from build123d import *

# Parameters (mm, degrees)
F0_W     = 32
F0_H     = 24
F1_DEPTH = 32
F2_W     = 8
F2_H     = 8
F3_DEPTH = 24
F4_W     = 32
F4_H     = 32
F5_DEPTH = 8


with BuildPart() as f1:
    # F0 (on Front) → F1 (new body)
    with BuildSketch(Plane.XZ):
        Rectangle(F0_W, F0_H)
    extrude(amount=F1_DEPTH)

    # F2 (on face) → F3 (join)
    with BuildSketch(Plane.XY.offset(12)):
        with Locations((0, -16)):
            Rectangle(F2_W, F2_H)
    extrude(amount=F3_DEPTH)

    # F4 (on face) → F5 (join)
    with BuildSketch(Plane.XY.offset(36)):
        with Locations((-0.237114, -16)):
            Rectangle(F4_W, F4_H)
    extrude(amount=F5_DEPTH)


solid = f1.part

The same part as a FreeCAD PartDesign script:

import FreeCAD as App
import Part
import Sketcher
from FreeCAD import Vector
Q = App.Units.Quantity


def add_polygon(sketch, points):
    """Adds a closed chain of lines whose ends are joined by coincident constraints."""
    first, n = sketch.GeometryCount, len(points)
    for a, b in zip(points, points[1:] + points[:1]):
        sketch.addGeometry(Part.LineSegment(App.Vector(*a, 0), App.Vector(*b, 0)), False)
    for i in range(n):
        sketch.addConstraint(Sketcher.Constraint("Coincident", first + i, 2, first + (i + 1) % n, 1))

doc = App.newDocument("Part")
params = doc.addObject("Spreadsheet::Sheet", "Params")
for row, (alias, value) in enumerate([
    ("sketch1_width", "32 mm"),
    ("sketch1_height", "24 mm"),
    ("pad1_length", "32 mm"),
    ("sketch2_width", "8 mm"),
    ("pad2_length", "24 mm"),
    ("sketch3_width", "32 mm"),
    ("pad3_length", "8 mm"),
], start=1):
    params.set(f"A{row}", alias)
    params.set(f"B{row}", "=" + value)
    params.setAlias(f"B{row}", alias)

body = doc.addObject("PartDesign::Body", "Body")

sketch1 = body.newObject("Sketcher::SketchObject", "Sketch")
sketch1.AttachmentSupport = (doc.getObject("XZ_Plane"), [""])
sketch1.MapMode = "FlatFace"
add_polygon(sketch1, [(-16, 12), (-16, -12), (16, -12), (16, 12)])
sketch1.addConstraint([
    Sketcher.Constraint("Vertical", 0),
    Sketcher.Constraint("Horizontal", 1),
    Sketcher.Constraint("Vertical", 2),
    Sketcher.Constraint("Horizontal", 3),
    Sketcher.Constraint("Symmetric", 0, 2, 2, 2, -1, 1),
    Sketcher.Constraint("DistanceX", 1, 1, 1, 2, Q("32 mm")),
    Sketcher.Constraint("DistanceY", 0, 2, 0, 1, Q("24 mm")),
])
sketch1.setExpression("Constraints[9]", "Params.sketch1_width")
sketch1.setExpression("Constraints[10]", "Params.sketch1_height")
pad1 = body.newObject("PartDesign::Pad", "Pad")
pad1.Profile = sketch1
pad1.setExpression("Length", "Params.pad1_length")

sketch2 = body.newObject("Sketcher::SketchObject", "Sketch001")
sketch2.AttachmentSupport = (doc.getObject("XY_Plane"), [""])
sketch2.MapMode = "FlatFace"
sketch2.AttachmentOffset = App.Placement(Vector(0, 0, 12), App.Rotation())
add_polygon(sketch2, [(-4, -12), (-4, -20), (4, -20), (4, -12)])
sketch2.addConstraint([
    Sketcher.Constraint("Vertical", 0),
    Sketcher.Constraint("Horizontal", 1),
    Sketcher.Constraint("Vertical", 2),
    Sketcher.Constraint("Horizontal", 3),
    Sketcher.Constraint("Equal", 3, 0),
    Sketcher.Constraint("DistanceX", 1, 1, 1, 2, Q("8 mm")),
    Sketcher.Constraint("DistanceX", 0, 2, -1, 1, Q("4 mm")),
    Sketcher.Constraint("DistanceY", 0, 2, -1, 1, Q("20 mm")),
])
sketch2.setExpression("Constraints[9]", "Params.sketch2_width")
pad2 = body.newObject("PartDesign::Pad", "Pad001")
pad2.Profile = sketch2
pad2.setExpression("Length", "Params.pad2_length")

sketch3 = body.newObject("Sketcher::SketchObject", "Sketch002")
sketch3.AttachmentSupport = (doc.getObject("XY_Plane"), [""])
sketch3.MapMode = "FlatFace"
sketch3.AttachmentOffset = App.Placement(Vector(0, 0, 36), App.Rotation())
add_polygon(sketch3, [(-16, 0), (-16, -32), (16, -32), (16, 0)])
sketch3.addConstraint([
    Sketcher.Constraint("Vertical", 0),
    Sketcher.Constraint("Horizontal", 1),
    Sketcher.Constraint("Vertical", 2),
    Sketcher.Constraint("Horizontal", 3),
    Sketcher.Constraint("PointOnObject", 2, 2, -1),
    Sketcher.Constraint("Equal", 3, 0),
    Sketcher.Constraint("DistanceX", 1, 1, 1, 2, Q("32 mm")),
    Sketcher.Constraint("DistanceX", 0, 2, -1, 1, Q("16.237114 mm")),
])
sketch3.setExpression("Constraints[10]", "Params.sketch3_width")
pad3 = body.newObject("PartDesign::Pad", "Pad002")
pad3.Profile = sketch3
pad3.setExpression("Length", "Params.pad3_length")

doc.recompute()
